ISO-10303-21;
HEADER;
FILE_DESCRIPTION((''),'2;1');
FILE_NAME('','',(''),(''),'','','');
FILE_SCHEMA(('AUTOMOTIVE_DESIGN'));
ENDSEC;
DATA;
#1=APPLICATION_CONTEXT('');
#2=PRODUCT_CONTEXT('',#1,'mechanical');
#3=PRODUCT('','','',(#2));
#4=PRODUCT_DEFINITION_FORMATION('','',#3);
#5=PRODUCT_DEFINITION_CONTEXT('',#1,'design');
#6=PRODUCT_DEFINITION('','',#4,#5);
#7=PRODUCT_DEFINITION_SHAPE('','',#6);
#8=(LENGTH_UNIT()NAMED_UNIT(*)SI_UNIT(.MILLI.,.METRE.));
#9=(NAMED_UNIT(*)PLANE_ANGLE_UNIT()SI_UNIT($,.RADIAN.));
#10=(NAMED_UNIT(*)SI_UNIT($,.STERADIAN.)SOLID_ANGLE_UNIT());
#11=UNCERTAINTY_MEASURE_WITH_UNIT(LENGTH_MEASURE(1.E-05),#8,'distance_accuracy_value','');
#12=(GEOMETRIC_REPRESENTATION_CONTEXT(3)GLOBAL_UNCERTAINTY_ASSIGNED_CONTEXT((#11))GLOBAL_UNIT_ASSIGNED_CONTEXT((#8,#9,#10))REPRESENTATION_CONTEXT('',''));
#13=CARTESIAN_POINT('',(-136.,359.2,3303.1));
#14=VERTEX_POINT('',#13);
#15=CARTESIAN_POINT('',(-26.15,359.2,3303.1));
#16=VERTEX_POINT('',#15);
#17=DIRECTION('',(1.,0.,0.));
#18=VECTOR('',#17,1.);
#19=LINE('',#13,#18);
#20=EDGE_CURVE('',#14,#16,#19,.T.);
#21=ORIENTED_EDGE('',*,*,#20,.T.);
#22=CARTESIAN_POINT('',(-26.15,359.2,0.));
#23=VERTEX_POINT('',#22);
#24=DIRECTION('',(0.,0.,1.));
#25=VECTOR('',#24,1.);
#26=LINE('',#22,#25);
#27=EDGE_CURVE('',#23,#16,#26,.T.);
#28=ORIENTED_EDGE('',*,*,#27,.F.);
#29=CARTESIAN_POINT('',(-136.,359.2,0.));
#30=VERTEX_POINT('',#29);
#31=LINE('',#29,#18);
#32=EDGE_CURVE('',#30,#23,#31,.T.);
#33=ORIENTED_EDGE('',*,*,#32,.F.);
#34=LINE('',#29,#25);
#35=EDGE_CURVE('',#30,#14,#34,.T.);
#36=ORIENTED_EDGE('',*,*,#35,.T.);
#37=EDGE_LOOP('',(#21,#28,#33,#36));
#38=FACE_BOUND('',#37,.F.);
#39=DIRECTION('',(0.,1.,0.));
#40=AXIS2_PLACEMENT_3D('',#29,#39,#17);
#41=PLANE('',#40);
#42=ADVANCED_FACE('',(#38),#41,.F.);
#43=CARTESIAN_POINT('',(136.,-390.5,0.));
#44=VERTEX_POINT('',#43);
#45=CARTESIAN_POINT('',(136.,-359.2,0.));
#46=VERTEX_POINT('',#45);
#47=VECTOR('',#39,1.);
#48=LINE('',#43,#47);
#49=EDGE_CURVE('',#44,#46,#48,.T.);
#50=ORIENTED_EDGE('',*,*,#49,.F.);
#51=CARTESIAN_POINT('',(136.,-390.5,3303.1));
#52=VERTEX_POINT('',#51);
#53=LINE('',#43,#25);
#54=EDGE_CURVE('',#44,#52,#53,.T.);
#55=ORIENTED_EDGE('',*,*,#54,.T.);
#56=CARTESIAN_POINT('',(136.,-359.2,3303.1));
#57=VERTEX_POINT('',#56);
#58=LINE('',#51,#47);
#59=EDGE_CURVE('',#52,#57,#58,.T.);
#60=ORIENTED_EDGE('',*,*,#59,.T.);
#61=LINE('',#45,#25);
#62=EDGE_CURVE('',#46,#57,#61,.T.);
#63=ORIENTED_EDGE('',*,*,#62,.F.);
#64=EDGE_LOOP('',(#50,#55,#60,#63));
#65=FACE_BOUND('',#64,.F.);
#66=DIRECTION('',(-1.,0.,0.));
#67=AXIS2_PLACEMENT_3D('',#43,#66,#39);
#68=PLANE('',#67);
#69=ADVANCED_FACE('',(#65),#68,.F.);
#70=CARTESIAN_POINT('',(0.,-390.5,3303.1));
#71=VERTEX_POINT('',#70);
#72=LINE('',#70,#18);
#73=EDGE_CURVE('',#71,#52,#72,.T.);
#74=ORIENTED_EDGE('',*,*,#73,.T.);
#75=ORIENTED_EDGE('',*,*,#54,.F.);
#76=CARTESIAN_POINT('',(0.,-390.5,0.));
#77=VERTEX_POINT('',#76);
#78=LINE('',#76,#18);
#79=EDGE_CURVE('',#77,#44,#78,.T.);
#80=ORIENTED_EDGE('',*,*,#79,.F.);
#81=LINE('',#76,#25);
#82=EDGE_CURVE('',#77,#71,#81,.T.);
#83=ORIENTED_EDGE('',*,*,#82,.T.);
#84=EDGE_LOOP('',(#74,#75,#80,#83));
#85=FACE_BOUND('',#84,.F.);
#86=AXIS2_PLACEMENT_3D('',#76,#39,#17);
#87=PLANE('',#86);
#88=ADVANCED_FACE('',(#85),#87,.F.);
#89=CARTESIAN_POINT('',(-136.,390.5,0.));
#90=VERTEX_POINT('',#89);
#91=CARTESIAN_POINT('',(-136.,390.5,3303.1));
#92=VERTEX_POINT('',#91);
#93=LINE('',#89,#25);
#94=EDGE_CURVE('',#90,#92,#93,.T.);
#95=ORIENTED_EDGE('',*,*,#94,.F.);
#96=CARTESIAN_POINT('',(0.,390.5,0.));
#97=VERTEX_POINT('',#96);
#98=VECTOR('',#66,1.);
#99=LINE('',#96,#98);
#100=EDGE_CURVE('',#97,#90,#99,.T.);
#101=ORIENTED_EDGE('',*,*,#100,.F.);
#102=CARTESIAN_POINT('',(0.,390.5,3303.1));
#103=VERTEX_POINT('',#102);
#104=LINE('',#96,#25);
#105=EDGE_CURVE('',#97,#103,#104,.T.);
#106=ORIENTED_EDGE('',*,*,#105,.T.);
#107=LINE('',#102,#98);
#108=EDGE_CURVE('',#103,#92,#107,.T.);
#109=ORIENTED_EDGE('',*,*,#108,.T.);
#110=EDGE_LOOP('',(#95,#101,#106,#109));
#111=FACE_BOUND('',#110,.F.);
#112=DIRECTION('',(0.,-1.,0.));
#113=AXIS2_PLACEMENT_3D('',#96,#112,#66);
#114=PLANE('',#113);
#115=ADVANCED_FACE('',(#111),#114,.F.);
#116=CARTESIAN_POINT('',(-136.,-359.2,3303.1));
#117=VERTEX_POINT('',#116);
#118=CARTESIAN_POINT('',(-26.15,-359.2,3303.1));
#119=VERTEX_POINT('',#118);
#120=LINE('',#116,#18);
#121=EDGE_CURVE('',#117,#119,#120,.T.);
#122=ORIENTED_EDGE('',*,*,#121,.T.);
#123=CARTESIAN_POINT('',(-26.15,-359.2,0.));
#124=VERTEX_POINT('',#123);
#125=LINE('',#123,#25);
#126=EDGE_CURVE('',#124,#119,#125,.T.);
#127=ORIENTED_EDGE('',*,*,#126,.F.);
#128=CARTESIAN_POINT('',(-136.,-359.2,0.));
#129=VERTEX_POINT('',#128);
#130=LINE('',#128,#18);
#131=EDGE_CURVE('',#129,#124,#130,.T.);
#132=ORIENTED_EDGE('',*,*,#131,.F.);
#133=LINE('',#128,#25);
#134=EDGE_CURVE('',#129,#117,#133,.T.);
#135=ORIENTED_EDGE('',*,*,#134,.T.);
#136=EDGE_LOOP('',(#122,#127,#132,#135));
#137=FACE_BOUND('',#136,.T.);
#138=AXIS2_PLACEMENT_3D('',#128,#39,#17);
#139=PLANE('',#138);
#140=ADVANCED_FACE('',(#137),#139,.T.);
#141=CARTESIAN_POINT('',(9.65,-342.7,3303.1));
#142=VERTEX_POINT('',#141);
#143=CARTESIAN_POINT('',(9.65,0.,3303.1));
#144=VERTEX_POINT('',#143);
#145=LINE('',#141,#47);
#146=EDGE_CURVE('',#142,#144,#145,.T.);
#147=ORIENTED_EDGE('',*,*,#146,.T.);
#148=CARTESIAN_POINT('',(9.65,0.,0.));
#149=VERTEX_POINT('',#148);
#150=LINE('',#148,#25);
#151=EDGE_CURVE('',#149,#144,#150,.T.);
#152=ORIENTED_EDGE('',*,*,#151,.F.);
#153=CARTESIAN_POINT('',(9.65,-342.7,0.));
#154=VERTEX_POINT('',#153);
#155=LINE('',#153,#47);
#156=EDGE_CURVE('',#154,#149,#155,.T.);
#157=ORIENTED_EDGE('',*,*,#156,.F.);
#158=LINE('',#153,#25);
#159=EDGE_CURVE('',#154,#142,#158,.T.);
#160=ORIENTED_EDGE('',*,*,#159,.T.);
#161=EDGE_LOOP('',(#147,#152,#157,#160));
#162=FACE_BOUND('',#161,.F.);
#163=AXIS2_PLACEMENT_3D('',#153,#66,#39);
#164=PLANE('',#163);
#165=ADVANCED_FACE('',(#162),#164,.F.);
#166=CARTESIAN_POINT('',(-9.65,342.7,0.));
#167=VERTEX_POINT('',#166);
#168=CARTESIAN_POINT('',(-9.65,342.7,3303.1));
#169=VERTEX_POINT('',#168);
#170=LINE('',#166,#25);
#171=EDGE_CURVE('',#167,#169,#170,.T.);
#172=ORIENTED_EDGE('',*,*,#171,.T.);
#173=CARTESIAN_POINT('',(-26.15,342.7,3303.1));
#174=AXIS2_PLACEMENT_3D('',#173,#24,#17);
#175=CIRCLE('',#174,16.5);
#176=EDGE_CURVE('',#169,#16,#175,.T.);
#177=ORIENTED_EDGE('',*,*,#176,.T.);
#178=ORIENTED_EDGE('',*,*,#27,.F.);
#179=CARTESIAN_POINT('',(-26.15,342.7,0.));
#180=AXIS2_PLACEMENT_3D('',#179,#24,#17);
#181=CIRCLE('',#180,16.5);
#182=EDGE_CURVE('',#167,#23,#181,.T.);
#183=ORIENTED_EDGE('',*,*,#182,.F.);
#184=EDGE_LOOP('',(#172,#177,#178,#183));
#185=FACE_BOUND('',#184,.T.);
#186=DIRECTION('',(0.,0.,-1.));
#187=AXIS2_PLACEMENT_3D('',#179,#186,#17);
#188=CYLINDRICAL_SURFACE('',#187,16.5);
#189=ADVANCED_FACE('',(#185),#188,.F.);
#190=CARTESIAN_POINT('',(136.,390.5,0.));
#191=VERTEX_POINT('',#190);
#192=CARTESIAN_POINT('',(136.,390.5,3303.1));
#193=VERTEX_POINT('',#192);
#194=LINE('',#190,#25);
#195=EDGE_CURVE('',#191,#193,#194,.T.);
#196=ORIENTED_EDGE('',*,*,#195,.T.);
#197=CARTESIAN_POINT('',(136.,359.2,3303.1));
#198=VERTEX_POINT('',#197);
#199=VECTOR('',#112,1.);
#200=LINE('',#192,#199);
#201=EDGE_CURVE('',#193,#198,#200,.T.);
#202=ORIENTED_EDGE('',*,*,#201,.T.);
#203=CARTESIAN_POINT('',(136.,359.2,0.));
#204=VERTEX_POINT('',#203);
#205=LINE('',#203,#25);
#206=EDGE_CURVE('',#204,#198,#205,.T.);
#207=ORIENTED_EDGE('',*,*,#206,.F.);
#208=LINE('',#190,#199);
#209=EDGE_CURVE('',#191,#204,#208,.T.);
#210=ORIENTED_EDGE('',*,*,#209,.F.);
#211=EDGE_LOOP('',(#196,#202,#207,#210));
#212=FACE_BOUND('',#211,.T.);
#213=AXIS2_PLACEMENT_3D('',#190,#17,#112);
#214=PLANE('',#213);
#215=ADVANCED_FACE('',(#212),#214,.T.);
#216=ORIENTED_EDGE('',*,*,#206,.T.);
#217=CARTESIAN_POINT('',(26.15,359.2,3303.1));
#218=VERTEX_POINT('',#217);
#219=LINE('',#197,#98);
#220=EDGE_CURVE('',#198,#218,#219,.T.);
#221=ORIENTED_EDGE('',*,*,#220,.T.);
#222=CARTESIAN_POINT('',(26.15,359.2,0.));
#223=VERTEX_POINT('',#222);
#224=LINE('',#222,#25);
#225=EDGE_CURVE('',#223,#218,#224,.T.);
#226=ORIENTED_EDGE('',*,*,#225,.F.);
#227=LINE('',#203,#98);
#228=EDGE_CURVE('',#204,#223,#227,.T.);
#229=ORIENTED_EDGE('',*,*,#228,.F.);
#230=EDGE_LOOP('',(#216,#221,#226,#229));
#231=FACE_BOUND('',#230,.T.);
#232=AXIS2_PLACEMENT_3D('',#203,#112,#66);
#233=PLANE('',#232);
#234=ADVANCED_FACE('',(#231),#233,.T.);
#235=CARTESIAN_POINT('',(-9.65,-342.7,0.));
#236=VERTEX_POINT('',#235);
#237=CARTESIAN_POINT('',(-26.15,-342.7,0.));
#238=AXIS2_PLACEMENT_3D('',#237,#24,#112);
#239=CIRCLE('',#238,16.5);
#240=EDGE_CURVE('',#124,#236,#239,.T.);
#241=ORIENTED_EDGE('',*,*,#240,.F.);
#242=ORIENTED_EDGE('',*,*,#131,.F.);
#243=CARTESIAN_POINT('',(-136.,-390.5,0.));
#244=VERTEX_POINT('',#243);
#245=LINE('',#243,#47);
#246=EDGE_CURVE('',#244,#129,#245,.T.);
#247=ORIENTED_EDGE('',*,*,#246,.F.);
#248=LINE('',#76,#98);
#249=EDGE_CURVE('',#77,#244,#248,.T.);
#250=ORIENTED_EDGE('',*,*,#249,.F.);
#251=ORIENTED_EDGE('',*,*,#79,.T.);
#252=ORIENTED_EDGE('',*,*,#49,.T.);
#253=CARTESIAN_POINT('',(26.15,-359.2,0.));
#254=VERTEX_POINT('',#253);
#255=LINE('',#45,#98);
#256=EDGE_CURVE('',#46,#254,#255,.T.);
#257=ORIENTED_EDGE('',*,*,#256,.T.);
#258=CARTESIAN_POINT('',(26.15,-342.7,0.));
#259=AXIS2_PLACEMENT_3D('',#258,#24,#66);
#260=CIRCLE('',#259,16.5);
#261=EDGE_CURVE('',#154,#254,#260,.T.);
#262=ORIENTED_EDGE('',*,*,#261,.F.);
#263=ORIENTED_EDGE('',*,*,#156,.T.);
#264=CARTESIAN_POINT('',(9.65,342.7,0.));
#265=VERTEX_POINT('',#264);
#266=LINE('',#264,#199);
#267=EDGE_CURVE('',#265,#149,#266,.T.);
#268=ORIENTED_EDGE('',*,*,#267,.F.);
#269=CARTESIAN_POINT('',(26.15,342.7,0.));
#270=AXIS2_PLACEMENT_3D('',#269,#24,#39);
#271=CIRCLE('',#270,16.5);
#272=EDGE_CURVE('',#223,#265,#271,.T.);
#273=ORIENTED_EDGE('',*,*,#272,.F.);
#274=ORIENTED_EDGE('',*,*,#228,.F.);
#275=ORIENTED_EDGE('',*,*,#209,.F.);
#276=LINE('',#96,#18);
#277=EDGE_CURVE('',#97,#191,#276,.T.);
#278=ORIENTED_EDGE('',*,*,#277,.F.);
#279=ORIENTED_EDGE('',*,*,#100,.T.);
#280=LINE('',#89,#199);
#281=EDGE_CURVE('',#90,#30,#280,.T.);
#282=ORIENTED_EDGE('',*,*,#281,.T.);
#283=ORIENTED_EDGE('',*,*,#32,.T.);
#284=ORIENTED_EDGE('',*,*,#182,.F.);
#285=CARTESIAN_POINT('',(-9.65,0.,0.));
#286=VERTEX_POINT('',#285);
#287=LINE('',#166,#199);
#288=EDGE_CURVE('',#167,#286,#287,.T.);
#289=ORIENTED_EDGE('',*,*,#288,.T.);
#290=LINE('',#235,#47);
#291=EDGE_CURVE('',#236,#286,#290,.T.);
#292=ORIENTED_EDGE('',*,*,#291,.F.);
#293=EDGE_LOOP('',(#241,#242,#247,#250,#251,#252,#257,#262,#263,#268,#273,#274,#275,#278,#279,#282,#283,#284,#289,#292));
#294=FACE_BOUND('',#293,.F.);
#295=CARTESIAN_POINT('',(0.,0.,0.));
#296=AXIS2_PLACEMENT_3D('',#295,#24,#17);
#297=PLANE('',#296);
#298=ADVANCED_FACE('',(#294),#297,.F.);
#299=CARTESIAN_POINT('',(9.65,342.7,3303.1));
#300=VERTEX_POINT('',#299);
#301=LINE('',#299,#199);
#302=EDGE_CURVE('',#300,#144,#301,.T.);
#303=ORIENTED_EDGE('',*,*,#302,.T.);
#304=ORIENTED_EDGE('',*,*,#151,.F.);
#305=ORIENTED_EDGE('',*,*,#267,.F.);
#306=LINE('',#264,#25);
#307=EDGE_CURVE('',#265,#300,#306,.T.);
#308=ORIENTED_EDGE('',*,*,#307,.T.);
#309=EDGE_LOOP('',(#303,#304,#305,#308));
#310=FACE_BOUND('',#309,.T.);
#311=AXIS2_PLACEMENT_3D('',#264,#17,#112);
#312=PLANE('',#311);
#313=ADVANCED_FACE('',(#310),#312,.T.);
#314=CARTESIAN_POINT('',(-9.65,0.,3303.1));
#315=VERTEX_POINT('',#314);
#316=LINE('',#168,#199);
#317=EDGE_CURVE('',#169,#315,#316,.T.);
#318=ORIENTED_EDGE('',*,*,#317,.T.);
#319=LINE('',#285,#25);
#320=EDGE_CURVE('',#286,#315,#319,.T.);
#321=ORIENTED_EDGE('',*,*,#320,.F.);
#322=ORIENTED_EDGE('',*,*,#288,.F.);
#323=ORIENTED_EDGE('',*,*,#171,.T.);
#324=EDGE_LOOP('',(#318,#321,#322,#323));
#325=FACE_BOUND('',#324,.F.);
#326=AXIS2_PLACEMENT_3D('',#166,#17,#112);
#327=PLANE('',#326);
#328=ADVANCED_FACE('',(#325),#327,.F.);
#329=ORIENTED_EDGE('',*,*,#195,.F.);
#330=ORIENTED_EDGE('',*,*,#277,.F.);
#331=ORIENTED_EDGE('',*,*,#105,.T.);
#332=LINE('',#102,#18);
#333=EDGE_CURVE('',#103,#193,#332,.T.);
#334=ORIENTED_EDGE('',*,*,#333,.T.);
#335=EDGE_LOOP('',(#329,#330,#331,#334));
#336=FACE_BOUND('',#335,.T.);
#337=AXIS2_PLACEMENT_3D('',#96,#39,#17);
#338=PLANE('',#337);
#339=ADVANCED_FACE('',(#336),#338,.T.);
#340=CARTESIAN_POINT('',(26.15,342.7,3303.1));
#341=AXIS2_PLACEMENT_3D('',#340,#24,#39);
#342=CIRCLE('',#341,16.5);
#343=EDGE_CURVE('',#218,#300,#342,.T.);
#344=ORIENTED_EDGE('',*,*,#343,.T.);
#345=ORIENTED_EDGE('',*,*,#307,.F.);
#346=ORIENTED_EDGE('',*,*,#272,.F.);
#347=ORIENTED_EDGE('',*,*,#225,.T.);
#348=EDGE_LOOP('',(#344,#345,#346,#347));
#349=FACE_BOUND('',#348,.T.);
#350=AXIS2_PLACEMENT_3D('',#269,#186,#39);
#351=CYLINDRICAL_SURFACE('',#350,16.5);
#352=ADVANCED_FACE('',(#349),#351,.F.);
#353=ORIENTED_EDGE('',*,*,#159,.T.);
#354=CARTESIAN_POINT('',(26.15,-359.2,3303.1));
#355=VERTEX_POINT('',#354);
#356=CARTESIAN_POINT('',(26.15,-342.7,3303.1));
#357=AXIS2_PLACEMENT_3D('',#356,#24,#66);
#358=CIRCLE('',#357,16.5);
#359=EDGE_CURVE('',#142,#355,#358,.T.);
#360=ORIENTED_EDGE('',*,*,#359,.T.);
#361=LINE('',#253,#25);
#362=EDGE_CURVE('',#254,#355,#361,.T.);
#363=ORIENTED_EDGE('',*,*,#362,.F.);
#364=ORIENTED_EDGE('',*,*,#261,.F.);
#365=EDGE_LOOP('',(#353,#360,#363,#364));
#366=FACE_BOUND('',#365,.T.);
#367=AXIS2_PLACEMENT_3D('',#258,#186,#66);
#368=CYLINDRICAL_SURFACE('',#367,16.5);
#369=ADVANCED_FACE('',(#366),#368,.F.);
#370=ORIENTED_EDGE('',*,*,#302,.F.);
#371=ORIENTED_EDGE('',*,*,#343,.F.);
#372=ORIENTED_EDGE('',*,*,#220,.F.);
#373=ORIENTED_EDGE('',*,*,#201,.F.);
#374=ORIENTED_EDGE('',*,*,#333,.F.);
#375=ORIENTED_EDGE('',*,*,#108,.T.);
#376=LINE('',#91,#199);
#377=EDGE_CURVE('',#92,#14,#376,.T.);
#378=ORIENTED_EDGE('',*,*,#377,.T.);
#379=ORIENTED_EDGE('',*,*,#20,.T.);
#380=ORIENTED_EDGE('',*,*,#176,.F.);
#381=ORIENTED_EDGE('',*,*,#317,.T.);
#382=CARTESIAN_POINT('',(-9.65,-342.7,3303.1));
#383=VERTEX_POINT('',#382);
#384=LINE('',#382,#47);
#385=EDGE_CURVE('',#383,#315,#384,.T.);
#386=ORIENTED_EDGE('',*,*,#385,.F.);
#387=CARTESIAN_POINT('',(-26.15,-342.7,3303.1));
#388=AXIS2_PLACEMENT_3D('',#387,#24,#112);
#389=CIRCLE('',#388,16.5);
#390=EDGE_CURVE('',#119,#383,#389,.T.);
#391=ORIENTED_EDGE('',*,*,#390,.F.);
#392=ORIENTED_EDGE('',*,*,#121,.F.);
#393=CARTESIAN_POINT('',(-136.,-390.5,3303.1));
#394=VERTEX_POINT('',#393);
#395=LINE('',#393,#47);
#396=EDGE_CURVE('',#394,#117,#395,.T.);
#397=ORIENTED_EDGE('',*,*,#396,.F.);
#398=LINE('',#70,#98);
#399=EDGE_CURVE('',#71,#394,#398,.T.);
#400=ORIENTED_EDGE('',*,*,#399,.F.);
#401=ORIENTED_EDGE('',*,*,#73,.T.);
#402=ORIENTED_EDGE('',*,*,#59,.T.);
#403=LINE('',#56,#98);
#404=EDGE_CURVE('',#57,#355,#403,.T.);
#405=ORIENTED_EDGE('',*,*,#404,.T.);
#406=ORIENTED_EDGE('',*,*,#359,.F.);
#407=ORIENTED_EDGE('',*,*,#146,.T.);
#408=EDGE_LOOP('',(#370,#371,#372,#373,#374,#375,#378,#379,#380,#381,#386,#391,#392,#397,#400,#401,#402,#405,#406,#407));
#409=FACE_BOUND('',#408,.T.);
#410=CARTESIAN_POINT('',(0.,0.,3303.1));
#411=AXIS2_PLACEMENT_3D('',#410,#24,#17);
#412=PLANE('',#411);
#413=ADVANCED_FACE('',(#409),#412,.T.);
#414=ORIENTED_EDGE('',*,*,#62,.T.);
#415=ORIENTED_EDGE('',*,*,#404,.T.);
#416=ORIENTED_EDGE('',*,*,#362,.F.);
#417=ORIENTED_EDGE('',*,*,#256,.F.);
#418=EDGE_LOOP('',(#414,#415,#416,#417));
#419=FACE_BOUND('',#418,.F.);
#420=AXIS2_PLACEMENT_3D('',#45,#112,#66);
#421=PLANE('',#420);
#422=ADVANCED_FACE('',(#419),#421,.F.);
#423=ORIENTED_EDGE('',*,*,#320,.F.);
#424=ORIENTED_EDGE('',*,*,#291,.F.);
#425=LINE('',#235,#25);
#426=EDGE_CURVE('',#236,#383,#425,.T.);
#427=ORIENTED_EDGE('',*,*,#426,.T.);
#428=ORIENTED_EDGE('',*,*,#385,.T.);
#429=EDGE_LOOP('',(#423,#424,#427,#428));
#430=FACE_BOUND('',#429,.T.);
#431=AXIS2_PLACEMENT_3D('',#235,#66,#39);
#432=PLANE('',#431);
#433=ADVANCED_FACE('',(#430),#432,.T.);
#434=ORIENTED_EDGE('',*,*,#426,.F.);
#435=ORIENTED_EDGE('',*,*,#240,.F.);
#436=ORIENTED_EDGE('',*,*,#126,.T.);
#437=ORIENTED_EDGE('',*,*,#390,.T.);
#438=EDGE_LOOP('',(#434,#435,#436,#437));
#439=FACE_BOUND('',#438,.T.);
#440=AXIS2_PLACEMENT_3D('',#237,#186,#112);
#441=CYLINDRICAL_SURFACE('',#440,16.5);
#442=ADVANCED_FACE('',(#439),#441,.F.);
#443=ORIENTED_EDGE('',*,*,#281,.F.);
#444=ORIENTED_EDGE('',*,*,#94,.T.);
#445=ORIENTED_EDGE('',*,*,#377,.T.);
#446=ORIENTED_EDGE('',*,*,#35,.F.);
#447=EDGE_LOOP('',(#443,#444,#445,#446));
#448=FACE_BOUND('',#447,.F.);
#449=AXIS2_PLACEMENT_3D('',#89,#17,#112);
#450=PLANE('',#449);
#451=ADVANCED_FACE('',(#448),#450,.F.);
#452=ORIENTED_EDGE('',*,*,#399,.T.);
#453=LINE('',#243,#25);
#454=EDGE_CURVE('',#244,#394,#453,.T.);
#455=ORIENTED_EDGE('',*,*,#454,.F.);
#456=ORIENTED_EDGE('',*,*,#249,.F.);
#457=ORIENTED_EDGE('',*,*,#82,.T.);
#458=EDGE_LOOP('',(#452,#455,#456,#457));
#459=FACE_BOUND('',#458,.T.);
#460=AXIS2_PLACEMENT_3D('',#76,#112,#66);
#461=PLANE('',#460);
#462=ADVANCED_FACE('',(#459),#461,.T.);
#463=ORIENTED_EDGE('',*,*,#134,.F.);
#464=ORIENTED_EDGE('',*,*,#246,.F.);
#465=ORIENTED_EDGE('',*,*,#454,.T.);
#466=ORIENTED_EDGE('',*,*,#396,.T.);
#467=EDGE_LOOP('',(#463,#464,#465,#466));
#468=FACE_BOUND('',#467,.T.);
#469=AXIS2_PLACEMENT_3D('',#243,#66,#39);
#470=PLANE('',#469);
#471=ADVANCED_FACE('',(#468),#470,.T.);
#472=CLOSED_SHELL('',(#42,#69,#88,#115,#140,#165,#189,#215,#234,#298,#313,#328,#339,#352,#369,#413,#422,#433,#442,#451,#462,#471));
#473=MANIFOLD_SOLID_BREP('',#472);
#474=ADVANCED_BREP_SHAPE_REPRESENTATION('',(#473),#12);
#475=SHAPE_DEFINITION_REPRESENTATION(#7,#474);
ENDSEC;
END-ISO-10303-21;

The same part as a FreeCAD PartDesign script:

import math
import FreeCAD as App
import Part
import Sketcher
Q = App.Units.Quantity

doc = App.newDocument("Part")
body = doc.addObject("PartDesign::Body", "Body")

# Sketch on XY plane
sketch1 = body.newObject("Sketcher::SketchObject", "Sketch")
sketch1.AttachmentSupport = (doc.getObject("XY_Plane"), [""])
sketch1.MapMode = "FlatFace"
sketch1.addGeometry(Part.LineSegment(App.Vector(-136, -359.2, 0), App.Vector(-136, -390.5, 0)), False)
sketch1.addGeometry(Part.LineSegment(App.Vector(-136, -390.5, 0), App.Vector(136, -390.5, 0)), False)
sketch1.addGeometry(Part.LineSegment(App.Vector(136, -390.5, 0), App.Vector(136, -359.2, 0)), False)
sketch1.addGeometry(Part.LineSegment(App.Vector(136, -359.2, 0), App.Vector(26.15, -359.2, 0)), False)
sketch1.addGeometry(Part.ArcOfCircle(Part.Circle(App.Vector(26.15, -342.7, 0), App.Vector(0, 0, 1), 16.5), math.radians(180), math.radians(270)), False)
sketch1.addGeometry(Part.LineSegment(App.Vector(9.65, -342.7, 0), App.Vector(9.65, 342.7, 0)), False)
sketch1.addGeometry(Part.ArcOfCircle(Part.Circle(App.Vector(26.15, 342.7, 0), App.Vector(0, 0, 1), 16.5), math.radians(90), math.radians(180)), False)
sketch1.addGeometry(Part.LineSegment(App.Vector(26.15, 359.2, 0), App.Vector(136, 359.2, 0)), False)
sketch1.addGeometry(Part.LineSegment(App.Vector(136, 359.2, 0), App.Vector(136, 390.5, 0)), False)
sketch1.addGeometry(Part.LineSegment(App.Vector(136, 390.5, 0), App.Vector(-136, 390.5, 0)), False)
sketch1.addGeometry(Part.LineSegment(App.Vector(-136, 390.5, 0), App.Vector(-136, 359.2, 0)), False)
sketch1.addGeometry(Part.LineSegment(App.Vector(-136, 359.2, 0), App.Vector(-26.15, 359.2, 0)), False)
sketch1.addGeometry(Part.ArcOfCircle(Part.Circle(App.Vector(-26.15, 342.7, 0), App.Vector(0, 0, 1), 16.5), math.radians(0), math.radians(90)), False)
sketch1.addGeometry(Part.LineSegment(App.Vector(-9.65, 342.7, 0), App.Vector(-9.65, -342.7, 0)), False)
sketch1.addGeometry(Part.ArcOfCircle(Part.Circle(App.Vector(-26.15, -342.7, 0), App.Vector(0, 0, 1), 16.5), math.radians(-90), math.radians(0)), False)
sketch1.addGeometry(Part.LineSegment(App.Vector(-26.15, -359.2, 0), App.Vector(-136, -359.2, 0)), False)
sketch1.addConstraint(Sketcher.Constraint("Coincident", 0, 2, 1, 1))
sketch1.addConstraint(Sketcher.Constraint("Coincident", 1, 2, 2, 1))
sketch1.addConstraint(Sketcher.Constraint("Coincident", 2, 2, 3, 1))
sketch1.addConstraint(Sketcher.Constraint("Tangent", 3, 2, 4, 2))
sketch1.addConstraint(Sketcher.Constraint("Tangent", 4, 1, 5, 1))
sketch1.addConstraint(Sketcher.Constraint("Tangent", 5, 2, 6, 2))
sketch1.addConstraint(Sketcher.Constraint("Tangent", 6, 1, 7, 1))
sketch1.addConstraint(Sketcher.Constraint("Coincident", 7, 2, 8, 1))
sketch1.addConstraint(Sketcher.Constraint("Coincident", 8, 2, 9, 1))
sketch1.addConstraint(Sketcher.Constraint("Coincident", 9, 2, 10, 1))
sketch1.addConstraint(Sketcher.Constraint("Coincident", 10, 2, 11, 1))
sketch1.addConstraint(Sketcher.Constraint("Tangent", 11, 2, 12, 2))
sketch1.addConstraint(Sketcher.Constraint("Tangent", 12, 1, 13, 1))
sketch1.addConstraint(Sketcher.Constraint("Tangent", 13, 2, 14, 2))
sketch1.addConstraint(Sketcher.Constraint("Tangent", 14, 1, 15, 1))
sketch1.addConstraint(Sketcher.Constraint("Coincident", 15, 2, 0, 1))
sketch1.addConstraint(Sketcher.Constraint("Vertical", 0))
sketch1.addConstraint(Sketcher.Constraint("Horizontal", 1))
sketch1.addConstraint(Sketcher.Constraint("Vertical", 2))
sketch1.addConstraint(Sketcher.Constraint("Horizontal", 3))
sketch1.addConstraint(Sketcher.Constraint("Vertical", 5))
sketch1.addConstraint(Sketcher.Constraint("Horizontal", 7))
sketch1.addConstraint(Sketcher.Constraint("Vertical", 8))
sketch1.addConstraint(Sketcher.Constraint("Horizontal", 9))
sketch1.addConstraint(Sketcher.Constraint("Vertical", 10))
sketch1.addConstraint(Sketcher.Constraint("Horizontal", 11))
sketch1.addConstraint(Sketcher.Constraint("Vertical", 13))
sketch1.addConstraint(Sketcher.Constraint("Horizontal", 15))
sketch1.addConstraint(Sketcher.Constraint("Equal", 4, 6))
sketch1.addConstraint(Sketcher.Constraint("Equal", 6, 12))
sketch1.addConstraint(Sketcher.Constraint("Equal", 12, 14))
sketch1.addConstraint(Sketcher.Constraint("Symmetric", 4, 3, 12, 3, -1, 1))
sketch1.addConstraint(Sketcher.Constraint("Symmetric", 0, 2, 8, 2, -1, 1))
sketch1.addConstraint(Sketcher.Constraint("Symmetric", 7, 2, 10, 2, -2))
sketch1.addConstraint(Sketcher.Constraint("Symmetric", 2, 2, 15, 2, -2))
sketch1.addConstraint(Sketcher.Constraint("Radius", 4, Q("16.5 mm")))
sketch1.addConstraint(Sketcher.Constraint("DistanceY", 0, 2, 0, 1, Q("31.3 mm")))
sketch1.addConstraint(Sketcher.Constraint("DistanceX", 0, 2, -1, 1, Q("136 mm")))
sketch1.addConstraint(Sketcher.Constraint("DistanceY", 0, 2, -1, 1, Q("390.5 mm")))
sketch1.addConstraint(Sketcher.Constraint("DistanceX", -1, 1, 4, 1, Q("9.65 mm")))
pad1 = body.newObject("PartDesign::Pad", "Pad")
pad1.Profile = sketch1
pad1.Length = 3303.1

doc.recompute()
